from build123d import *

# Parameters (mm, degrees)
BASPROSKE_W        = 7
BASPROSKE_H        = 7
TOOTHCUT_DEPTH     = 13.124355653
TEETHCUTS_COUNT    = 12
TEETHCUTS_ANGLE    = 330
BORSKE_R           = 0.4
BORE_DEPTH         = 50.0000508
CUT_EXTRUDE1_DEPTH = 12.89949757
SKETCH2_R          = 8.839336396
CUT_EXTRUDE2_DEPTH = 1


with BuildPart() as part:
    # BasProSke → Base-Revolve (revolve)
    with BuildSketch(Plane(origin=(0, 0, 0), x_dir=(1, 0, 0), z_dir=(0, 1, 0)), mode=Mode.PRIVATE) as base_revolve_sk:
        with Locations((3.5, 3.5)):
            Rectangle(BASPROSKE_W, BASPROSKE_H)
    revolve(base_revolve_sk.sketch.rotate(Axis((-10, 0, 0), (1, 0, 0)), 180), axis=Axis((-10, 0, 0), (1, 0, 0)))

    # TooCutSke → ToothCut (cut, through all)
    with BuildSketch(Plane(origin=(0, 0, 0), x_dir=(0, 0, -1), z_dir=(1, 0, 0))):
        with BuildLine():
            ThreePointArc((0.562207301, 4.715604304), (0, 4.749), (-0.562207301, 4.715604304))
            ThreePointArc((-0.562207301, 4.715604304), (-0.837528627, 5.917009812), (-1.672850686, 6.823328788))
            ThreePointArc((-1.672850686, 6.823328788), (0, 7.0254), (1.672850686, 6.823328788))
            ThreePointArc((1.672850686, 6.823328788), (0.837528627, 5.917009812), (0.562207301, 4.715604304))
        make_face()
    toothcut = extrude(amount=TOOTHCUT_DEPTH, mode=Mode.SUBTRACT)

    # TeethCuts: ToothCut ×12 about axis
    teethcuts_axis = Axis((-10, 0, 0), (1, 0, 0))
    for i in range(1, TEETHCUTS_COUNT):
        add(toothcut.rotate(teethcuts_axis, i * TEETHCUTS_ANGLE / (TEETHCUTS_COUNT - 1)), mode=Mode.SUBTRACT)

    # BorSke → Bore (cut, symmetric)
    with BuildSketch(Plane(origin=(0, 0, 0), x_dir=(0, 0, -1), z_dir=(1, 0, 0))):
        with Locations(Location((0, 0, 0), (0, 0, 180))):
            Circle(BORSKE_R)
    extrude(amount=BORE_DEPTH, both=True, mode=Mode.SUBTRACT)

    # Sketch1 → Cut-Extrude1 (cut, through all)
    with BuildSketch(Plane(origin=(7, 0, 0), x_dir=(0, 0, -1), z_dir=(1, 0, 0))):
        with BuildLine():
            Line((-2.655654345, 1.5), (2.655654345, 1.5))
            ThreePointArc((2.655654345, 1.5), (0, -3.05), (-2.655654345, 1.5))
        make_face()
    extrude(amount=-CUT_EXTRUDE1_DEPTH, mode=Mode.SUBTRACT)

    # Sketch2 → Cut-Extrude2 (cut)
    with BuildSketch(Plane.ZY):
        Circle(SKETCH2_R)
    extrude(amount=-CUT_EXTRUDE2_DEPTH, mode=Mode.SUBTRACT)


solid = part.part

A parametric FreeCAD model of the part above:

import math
import FreeCAD as App
import Part
import Sketcher

V = App.Vector
Q = App.Units.Quantity

doc = App.newDocument("Part")
params = doc.addObject("Spreadsheet::Sheet", "Params")
for row, (alias, value) in enumerate([
    ("sketch1_width", "7 mm"),
    ("revolution_angle", "360 deg"),
    ("sketch2_radius", "2.4 mm"),
    ("sketch3_diameter", "0.8 mm"),
    ("pocket2_length", "100.000102 mm"),
    ("sketch4_radius", "3.05 mm"),
    ("pocket4_length", "1 mm"),
], start=1):
    params.set(f"A{row}", alias)
    params.set(f"B{row}", "=" + value)
    params.setAlias(f"B{row}", alias)

body = doc.addObject("PartDesign::Body", "Body")

# Sketch on XZ plane
sketch1 = body.newObject("Sketcher::SketchObject", "Sketch")
sketch1.AttachmentSupport = (doc.getObject("XZ_Plane"), [""])
sketch1.MapMode = "FlatFace"
sketch1.addGeometry([
    Part.LineSegment(V(0, -7, 0), V(0, 0, 0)),
    Part.LineSegment(V(0, 0, 0), V(7, 0, 0)),
    Part.LineSegment(V(7, 0, 0), V(7, -7, 0)),
    Part.LineSegment(V(7, -7, 0), V(0, -7, 0)),
], False)
sketch1.addConstraint([
    Sketcher.Constraint("Coincident", 0, 2, 1, 1),
    Sketcher.Constraint("Coincident", 1, 2, 2, 1),
    Sketcher.Constraint("Coincident", 2, 2, 3, 1),
    Sketcher.Constraint("Coincident", 3, 2, 0, 1),
    Sketcher.Constraint("Vertical", 0),
    Sketcher.Constraint("Horizontal", 1),
    Sketcher.Constraint("Vertical", 2),
    Sketcher.Constraint("Horizontal", 3),
    Sketcher.Constraint("Coincident", 0, 2, -1, 1),
    Sketcher.Constraint("Equal", 3, 0),
    Sketcher.Constraint("DistanceX", 1, 1, 1, 2, Q("7 mm")),
])
sketch1.setExpression("Constraints[10]", "Params.sketch1_width")
revolution = body.newObject("PartDesign::Revolution", "Revolution")
revolution.Profile = sketch1
revolution.ReferenceAxis = (sketch1, ["H_Axis"])
revolution.setExpression("Angle", "Params.revolution_angle")

# Sketch on YZ plane
sketch2 = body.newObject("Sketcher::SketchObject", "Sketch001")
sketch2.AttachmentSupport = (doc.getObject("YZ_Plane"), [""])
sketch2.MapMode = "FlatFace"
sketch2.addGeometry([
    Part.ArcOfCircle(Part.Circle(V(0, 0, 0), V(0, 0, 1), 4.7), math.radians(-6.8), math.radians(6.8)),
    Part.ArcOfCircle(Part.Circle(V(4.8, -3, 0), V(0, 0, 1), 2.4), math.radians(32), math.radians(92)),
    Part.ArcOfCircle(Part.Circle(V(0, 0, 0), V(0, 0, 1), 7), math.radians(-14), math.radians(14)),
    Part.ArcOfCircle(Part.Circle(V(4.8, 3, 0), V(0, 0, 1), 2.4), math.radians(-92), math.radians(-32)),
], False)
sketch2.addConstraint([
    Sketcher.Constraint("Coincident", 0, 1, 1, 2),
    Sketcher.Constraint("Coincident", 1, 1, 2, 1),
    Sketcher.Constraint("Coincident", 2, 2, 3, 2),
    Sketcher.Constraint("Coincident", 3, 1, 0, 2),
    Sketcher.Constraint("Coincident", 0, 3, -1, 1),
    Sketcher.Constraint("Coincident", 2, 3, -1, 1),
    Sketcher.Constraint("Equal", 1, 3),
    Sketcher.Constraint("Symmetric", 1, 3, 3, 3, -1),
    Sketcher.Constraint("Radius", 1, Q("2.4 mm")),
    Sketcher.Constraint("Radius", 0, Q("4.749 mm")),
    Sketcher.Constraint("Radius", 2, Q("7.0254 mm")),
    Sketcher.Constraint("DistanceY", 1, 1, 2, 2, Q("3.345701 mm")),
    Sketcher.Constraint("DistanceX", -1, 1, 1, 3, Q("4.798181 mm")),
])
sketch2.setExpression("Constraints[8]", "Params.sketch2_radius")
pocket1 = body.newObject("PartDesign::Pocket", "Pocket")
pocket1.Profile = sketch2
pocket1.Type = "ThroughAll"
pocket1.Reversed = True
doc.recompute()

polarpattern = body.newObject("PartDesign::PolarPattern", "PolarPattern")
polarpattern.Originals = [pocket1]
polarpattern.Axis = (doc.getObject("X_Axis"), [""])
polarpattern.Angle = 360
polarpattern.Occurrences = 12
body.Tip = polarpattern

# Sketch on YZ plane
sketch3 = body.newObject("Sketcher::SketchObject", "Sketch002")
sketch3.AttachmentSupport = (doc.getObject("YZ_Plane"), [""])
sketch3.MapMode = "FlatFace"
sketch3.addGeometry(Part.Circle(V(0, 0, 0), V(0, 0, 1), 0.4), False)
sketch3.addConstraint([
    Sketcher.Constraint("Coincident", 0, 3, -1, 1),
    Sketcher.Constraint("Diameter", 0, Q("0.8 mm")),
])
sketch3.setExpression("Constraints[1]", "Params.sketch3_diameter")
pocket2 = body.newObject("PartDesign::Pocket", "Pocket001")
pocket2.Profile = sketch3
pocket2.setExpression("Length", "Params.pocket2_length")
pocket2.Midplane = True

# Sketch on YZ plane
sketch4 = body.newObject("Sketcher::SketchObject", "Sketch003")
sketch4.AttachmentSupport = (doc.getObject("YZ_Plane"), [""])
sketch4.MapMode = "FlatFace"
sketch4.AttachmentOffset = App.Placement(V(0, 0, 7), App.Rotation())
sketch4.addGeometry([
    Part.LineSegment(V(1.5, -2.7, 0), V(1.5, 2.7, 0)),
    Part.ArcOfCircle(Part.Circle(V(0, 0, 0), V(0, 0, 1), 3), math.radians(61), math.radians(299)),
], False)
sketch4.addConstraint([
    Sketcher.Constraint("Coincident", 0, 1, 1, 2),
    Sketcher.Constraint("Coincident", 1, 1, 0, 2),
    Sketcher.Constraint("Vertical", 0),
    Sketcher.Constraint("Coincident", 1, 3, -1, 1),
    Sketcher.Constraint("Radius", 1, Q("3.05 mm")),
    Sketcher.Constraint("DistanceX", -1, 1, 0, 1, Q("1.5 mm")),
])
sketch4.setExpression("Constraints[4]", "Params.sketch4_radius")
pocket3 = body.newObject("PartDesign::Pocket", "Pocket002")
pocket3.Profile = sketch4
pocket3.Type = "ThroughAll"

# Sketch on YZ plane
sketch5 = body.newObject("Sketcher::SketchObject", "Sketch004")
sketch5.AttachmentSupport = (doc.getObject("YZ_Plane"), [""])
sketch5.MapMode = "FlatFace"
sketch5.addGeometry(Part.Circle(V(0, 0, 0), V(0, 0, 1), 9), False)
sketch5.addConstraint([
    Sketcher.Constraint("Coincident", 0, 3, -1, 1),
    Sketcher.Constraint("Diameter", 0, Q("17.678673 mm")),
])
pocket4 = body.newObject("PartDesign::Pocket", "Pocket003")
pocket4.Profile = sketch5
pocket4.setExpression("Length", "Params.pocket4_length")
pocket4.Reversed = True

doc.recompute()
